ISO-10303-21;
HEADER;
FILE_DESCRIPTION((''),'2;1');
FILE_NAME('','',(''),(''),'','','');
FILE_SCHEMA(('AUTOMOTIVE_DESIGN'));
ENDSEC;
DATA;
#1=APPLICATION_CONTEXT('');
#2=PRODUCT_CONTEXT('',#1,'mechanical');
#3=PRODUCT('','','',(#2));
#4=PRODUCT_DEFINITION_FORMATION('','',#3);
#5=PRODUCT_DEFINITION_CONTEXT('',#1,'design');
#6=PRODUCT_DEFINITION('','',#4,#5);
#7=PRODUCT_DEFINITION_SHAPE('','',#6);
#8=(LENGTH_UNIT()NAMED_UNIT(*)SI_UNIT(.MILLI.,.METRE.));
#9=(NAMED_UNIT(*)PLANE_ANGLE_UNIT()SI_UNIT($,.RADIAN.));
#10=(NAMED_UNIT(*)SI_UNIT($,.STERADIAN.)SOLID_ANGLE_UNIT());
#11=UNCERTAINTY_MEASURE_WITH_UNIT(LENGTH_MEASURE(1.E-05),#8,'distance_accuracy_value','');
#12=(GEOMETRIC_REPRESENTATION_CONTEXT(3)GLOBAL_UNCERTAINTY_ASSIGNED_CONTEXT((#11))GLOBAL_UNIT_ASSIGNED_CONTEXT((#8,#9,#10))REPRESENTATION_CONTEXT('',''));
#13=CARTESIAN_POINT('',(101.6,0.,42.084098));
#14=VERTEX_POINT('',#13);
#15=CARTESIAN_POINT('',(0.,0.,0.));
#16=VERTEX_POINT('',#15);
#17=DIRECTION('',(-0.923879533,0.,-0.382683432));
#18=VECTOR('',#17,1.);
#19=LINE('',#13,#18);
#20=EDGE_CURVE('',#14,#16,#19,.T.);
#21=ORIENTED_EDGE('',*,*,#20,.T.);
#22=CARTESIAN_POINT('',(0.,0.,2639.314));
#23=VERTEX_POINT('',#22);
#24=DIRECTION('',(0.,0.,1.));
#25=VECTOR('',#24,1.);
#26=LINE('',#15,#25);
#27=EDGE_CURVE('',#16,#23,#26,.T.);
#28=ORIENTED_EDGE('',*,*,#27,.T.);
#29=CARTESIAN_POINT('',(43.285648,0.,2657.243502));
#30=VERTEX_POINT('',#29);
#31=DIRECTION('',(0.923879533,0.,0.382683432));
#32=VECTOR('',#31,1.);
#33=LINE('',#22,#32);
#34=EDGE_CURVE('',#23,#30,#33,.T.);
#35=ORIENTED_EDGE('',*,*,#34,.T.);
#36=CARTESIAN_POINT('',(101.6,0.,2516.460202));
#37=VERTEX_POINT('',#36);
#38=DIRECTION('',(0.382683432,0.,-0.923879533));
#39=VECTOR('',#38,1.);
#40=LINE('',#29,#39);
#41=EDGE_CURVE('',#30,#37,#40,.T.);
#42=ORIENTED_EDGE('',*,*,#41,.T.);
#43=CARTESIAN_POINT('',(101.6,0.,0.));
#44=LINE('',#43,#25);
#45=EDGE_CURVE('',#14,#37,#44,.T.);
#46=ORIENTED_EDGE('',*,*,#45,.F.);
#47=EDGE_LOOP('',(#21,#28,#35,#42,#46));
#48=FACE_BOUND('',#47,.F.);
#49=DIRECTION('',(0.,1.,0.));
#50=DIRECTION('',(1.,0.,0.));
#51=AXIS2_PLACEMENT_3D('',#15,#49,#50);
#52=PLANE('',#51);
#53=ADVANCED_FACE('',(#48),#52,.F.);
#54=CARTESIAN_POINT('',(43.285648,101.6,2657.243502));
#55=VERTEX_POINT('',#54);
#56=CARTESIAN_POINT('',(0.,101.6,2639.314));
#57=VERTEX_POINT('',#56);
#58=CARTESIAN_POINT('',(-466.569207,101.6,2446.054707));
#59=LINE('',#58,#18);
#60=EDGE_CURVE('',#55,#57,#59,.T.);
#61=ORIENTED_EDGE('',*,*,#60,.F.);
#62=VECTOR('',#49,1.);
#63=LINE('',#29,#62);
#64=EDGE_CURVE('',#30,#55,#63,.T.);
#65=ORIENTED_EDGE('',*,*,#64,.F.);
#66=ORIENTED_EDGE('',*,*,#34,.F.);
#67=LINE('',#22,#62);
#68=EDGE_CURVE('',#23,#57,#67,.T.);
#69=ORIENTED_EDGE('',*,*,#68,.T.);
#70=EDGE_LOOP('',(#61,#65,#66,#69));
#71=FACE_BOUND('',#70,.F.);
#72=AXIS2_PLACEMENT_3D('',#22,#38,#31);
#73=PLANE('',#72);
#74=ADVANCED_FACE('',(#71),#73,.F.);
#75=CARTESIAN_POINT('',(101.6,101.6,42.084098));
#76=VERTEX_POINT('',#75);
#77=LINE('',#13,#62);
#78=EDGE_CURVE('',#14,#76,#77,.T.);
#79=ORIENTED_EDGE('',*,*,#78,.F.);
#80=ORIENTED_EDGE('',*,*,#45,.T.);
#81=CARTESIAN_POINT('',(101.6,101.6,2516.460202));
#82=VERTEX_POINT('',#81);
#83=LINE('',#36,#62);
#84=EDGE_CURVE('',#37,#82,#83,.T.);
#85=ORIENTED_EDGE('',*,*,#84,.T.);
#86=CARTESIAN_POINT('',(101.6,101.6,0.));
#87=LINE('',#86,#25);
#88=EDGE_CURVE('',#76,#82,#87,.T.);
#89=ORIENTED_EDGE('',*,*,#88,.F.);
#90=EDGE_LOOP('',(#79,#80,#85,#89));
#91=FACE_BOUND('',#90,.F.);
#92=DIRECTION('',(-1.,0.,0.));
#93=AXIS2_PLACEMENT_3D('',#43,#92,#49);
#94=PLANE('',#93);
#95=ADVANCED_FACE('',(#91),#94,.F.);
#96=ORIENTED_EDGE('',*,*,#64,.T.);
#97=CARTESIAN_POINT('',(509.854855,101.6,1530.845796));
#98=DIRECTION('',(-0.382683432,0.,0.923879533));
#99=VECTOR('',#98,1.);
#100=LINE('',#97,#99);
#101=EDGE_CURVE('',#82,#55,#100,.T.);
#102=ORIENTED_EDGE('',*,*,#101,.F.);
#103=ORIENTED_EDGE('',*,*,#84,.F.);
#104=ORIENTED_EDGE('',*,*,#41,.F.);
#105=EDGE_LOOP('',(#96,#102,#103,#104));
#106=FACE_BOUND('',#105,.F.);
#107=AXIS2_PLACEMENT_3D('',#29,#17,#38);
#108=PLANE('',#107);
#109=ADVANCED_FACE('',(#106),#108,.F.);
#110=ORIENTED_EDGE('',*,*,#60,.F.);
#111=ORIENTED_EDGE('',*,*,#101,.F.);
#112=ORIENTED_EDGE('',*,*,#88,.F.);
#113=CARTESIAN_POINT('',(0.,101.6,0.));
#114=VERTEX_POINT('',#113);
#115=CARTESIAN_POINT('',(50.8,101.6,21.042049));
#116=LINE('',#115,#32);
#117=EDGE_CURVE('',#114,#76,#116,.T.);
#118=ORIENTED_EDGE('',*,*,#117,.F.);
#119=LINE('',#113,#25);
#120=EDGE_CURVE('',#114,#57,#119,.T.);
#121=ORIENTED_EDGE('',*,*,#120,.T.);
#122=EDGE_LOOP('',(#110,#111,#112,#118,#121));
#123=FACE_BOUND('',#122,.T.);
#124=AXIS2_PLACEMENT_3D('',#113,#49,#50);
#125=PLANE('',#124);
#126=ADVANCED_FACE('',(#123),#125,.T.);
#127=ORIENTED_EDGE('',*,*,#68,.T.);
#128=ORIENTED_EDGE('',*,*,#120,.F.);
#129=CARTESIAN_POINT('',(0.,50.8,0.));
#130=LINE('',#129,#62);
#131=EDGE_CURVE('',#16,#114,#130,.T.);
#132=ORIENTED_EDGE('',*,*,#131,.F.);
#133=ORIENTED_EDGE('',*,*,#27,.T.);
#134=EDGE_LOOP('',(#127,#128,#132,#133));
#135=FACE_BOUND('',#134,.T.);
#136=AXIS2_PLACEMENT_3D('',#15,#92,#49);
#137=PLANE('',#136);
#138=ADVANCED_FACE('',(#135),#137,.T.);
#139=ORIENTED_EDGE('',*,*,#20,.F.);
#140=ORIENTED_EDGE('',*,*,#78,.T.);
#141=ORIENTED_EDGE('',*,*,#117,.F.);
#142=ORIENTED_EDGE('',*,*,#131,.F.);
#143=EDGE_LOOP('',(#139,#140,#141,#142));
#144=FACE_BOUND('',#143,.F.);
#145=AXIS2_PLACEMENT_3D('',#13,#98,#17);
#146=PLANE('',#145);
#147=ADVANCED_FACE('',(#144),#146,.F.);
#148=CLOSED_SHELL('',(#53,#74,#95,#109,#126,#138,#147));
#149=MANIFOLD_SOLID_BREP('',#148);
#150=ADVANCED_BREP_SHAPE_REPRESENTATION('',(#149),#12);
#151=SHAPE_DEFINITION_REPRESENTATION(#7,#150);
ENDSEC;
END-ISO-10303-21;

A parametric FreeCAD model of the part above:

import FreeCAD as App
import Part
import Sketcher
from FreeCAD import Vector
Q = App.Units.Quantity


def add_polygon(sketch, points):
    """Adds a closed chain of lines whose ends are joined by coincident constraints."""
    first, n = sketch.GeometryCount, len(points)
    for a, b in zip(points, points[1:] + points[:1]):
        sketch.addGeometry(Part.LineSegment(App.Vector(*a, 0), App.Vector(*b, 0)), False)
    for i in range(n):
        sketch.addConstraint(Sketcher.Constraint("Coincident", first + i, 2, first + (i + 1) % n, 1))

doc = App.newDocument("Part")
body = doc.addObject("PartDesign::Body", "Body")

# Sketch on XY plane
sketch1 = body.newObject("Sketcher::SketchObject", "Sketch")
sketch1.AttachmentSupport = (doc.getObject("XY_Plane"), [""])
sketch1.MapMode = "FlatFace"
add_polygon(sketch1, [(0, 101.6), (0, 0), (101.6, 0), (101.6, 101.6)])  # lines 0-3
sketch1.addConstraint([
    Sketcher.Constraint("Vertical", 0),
    Sketcher.Constraint("Horizontal", 1),
    Sketcher.Constraint("Vertical", 2),
    Sketcher.Constraint("Horizontal", 3),
    Sketcher.Constraint("Coincident", 0, 2, -1, 1),
    Sketcher.Constraint("Equal", 3, 0),
    Sketcher.Constraint("DistanceX", 1, 1, 1, 2, Q("4 in")),
])
pad1 = body.newObject("PartDesign::Pad", "Pad")
pad1.Profile = sketch1
pad1.Length = Q("120 in")

# Sketch on XZ plane
sketch2 = body.newObject("Sketcher::SketchObject", "Sketch001")
sketch2.AttachmentSupport = (doc.getObject("XZ_Plane"), [""])
sketch2.MapMode = "FlatFace"
add_polygon(sketch2, [(101.6, 42.084098), (0, 0), (101.6, 0)])  # lines 0-2
sketch2.addConstraint([
    Sketcher.Constraint("Horizontal", 1),
    Sketcher.Constraint("Vertical", 2),
    Sketcher.Constraint("Coincident", 0, 2, -1, 1),
    Sketcher.Constraint("DistanceX", 1, 1, 1, 2, Q("4 in")),
    Sketcher.Constraint("Angle", 0, Q("-157.5 deg")),
])
pocket1 = body.newObject("PartDesign::Pocket", "Pocket")
pocket1.Profile = sketch2
pocket1.Type = "ThroughAll"

# Sketch on XZ plane
sketch3 = body.newObject("Sketcher::SketchObject", "Sketch002")
sketch3.AttachmentSupport = (doc.getObject("XZ_Plane"), [""])
sketch3.MapMode = "FlatFace"
add_polygon(sketch3, [(0, 3048), (0, 2639.314), (101.6, 2681.398098), (101.6, 3048)])  # lines 0-3
sketch3.addConstraint([
    Sketcher.Constraint("Vertical", 0),
    Sketcher.Constraint("Vertical", 2),
    Sketcher.Constraint("Horizontal", 3),
    Sketcher.Constraint("PointOnObject", 0, 2, -2),
    Sketcher.Constraint("DistanceX", 3, 2, 3, 1, Q("4 in")),
    Sketcher.Constraint("DistanceY", -1, 1, 2, 2, Q("120 in")),
    Sketcher.Constraint("DistanceY", 0, 2, 0, 1, Q("16.09 in")),
    Sketcher.Constraint("Angle", 1, Q("22.5 deg")),
])
pocket2 = body.newObject("PartDesign::Pocket", "Pocket001")
pocket2.Profile = sketch3
pocket2.Type = "ThroughAll"

# Sketch on XZ plane
sketch4 = body.newObject("Sketcher::SketchObject", "Sketch003")
sketch4.AttachmentSupport = (doc.getObject("XZ_Plane"), [""])
sketch4.MapMode = "FlatFace"
add_polygon(sketch4, [(101.6, 2681.398098), (43.285648, 2657.243502), (101.6, 2516.460202)])  # lines 0-2
sketch4.addConstraint([
    Sketcher.Constraint("Vertical", 2),
    Sketcher.Constraint("Perpendicular", 0, 1),
    Sketcher.Constraint("DistanceX", -1, 1, 1, 2, Q("4 in")),
    Sketcher.Constraint("Angle", 0, Q("-157.5 deg")),
    Sketcher.Constraint("Distance", 0, Q("2.485 in")),
    Sketcher.Constraint("DistanceY", -1, 1, 0, 2, 2657.243502),
])
pocket3 = body.newObject("PartDesign::Pocket", "Pocket002")
pocket3.Profile = sketch4
pocket3.Type = "ThroughAll"

doc.recompute()
